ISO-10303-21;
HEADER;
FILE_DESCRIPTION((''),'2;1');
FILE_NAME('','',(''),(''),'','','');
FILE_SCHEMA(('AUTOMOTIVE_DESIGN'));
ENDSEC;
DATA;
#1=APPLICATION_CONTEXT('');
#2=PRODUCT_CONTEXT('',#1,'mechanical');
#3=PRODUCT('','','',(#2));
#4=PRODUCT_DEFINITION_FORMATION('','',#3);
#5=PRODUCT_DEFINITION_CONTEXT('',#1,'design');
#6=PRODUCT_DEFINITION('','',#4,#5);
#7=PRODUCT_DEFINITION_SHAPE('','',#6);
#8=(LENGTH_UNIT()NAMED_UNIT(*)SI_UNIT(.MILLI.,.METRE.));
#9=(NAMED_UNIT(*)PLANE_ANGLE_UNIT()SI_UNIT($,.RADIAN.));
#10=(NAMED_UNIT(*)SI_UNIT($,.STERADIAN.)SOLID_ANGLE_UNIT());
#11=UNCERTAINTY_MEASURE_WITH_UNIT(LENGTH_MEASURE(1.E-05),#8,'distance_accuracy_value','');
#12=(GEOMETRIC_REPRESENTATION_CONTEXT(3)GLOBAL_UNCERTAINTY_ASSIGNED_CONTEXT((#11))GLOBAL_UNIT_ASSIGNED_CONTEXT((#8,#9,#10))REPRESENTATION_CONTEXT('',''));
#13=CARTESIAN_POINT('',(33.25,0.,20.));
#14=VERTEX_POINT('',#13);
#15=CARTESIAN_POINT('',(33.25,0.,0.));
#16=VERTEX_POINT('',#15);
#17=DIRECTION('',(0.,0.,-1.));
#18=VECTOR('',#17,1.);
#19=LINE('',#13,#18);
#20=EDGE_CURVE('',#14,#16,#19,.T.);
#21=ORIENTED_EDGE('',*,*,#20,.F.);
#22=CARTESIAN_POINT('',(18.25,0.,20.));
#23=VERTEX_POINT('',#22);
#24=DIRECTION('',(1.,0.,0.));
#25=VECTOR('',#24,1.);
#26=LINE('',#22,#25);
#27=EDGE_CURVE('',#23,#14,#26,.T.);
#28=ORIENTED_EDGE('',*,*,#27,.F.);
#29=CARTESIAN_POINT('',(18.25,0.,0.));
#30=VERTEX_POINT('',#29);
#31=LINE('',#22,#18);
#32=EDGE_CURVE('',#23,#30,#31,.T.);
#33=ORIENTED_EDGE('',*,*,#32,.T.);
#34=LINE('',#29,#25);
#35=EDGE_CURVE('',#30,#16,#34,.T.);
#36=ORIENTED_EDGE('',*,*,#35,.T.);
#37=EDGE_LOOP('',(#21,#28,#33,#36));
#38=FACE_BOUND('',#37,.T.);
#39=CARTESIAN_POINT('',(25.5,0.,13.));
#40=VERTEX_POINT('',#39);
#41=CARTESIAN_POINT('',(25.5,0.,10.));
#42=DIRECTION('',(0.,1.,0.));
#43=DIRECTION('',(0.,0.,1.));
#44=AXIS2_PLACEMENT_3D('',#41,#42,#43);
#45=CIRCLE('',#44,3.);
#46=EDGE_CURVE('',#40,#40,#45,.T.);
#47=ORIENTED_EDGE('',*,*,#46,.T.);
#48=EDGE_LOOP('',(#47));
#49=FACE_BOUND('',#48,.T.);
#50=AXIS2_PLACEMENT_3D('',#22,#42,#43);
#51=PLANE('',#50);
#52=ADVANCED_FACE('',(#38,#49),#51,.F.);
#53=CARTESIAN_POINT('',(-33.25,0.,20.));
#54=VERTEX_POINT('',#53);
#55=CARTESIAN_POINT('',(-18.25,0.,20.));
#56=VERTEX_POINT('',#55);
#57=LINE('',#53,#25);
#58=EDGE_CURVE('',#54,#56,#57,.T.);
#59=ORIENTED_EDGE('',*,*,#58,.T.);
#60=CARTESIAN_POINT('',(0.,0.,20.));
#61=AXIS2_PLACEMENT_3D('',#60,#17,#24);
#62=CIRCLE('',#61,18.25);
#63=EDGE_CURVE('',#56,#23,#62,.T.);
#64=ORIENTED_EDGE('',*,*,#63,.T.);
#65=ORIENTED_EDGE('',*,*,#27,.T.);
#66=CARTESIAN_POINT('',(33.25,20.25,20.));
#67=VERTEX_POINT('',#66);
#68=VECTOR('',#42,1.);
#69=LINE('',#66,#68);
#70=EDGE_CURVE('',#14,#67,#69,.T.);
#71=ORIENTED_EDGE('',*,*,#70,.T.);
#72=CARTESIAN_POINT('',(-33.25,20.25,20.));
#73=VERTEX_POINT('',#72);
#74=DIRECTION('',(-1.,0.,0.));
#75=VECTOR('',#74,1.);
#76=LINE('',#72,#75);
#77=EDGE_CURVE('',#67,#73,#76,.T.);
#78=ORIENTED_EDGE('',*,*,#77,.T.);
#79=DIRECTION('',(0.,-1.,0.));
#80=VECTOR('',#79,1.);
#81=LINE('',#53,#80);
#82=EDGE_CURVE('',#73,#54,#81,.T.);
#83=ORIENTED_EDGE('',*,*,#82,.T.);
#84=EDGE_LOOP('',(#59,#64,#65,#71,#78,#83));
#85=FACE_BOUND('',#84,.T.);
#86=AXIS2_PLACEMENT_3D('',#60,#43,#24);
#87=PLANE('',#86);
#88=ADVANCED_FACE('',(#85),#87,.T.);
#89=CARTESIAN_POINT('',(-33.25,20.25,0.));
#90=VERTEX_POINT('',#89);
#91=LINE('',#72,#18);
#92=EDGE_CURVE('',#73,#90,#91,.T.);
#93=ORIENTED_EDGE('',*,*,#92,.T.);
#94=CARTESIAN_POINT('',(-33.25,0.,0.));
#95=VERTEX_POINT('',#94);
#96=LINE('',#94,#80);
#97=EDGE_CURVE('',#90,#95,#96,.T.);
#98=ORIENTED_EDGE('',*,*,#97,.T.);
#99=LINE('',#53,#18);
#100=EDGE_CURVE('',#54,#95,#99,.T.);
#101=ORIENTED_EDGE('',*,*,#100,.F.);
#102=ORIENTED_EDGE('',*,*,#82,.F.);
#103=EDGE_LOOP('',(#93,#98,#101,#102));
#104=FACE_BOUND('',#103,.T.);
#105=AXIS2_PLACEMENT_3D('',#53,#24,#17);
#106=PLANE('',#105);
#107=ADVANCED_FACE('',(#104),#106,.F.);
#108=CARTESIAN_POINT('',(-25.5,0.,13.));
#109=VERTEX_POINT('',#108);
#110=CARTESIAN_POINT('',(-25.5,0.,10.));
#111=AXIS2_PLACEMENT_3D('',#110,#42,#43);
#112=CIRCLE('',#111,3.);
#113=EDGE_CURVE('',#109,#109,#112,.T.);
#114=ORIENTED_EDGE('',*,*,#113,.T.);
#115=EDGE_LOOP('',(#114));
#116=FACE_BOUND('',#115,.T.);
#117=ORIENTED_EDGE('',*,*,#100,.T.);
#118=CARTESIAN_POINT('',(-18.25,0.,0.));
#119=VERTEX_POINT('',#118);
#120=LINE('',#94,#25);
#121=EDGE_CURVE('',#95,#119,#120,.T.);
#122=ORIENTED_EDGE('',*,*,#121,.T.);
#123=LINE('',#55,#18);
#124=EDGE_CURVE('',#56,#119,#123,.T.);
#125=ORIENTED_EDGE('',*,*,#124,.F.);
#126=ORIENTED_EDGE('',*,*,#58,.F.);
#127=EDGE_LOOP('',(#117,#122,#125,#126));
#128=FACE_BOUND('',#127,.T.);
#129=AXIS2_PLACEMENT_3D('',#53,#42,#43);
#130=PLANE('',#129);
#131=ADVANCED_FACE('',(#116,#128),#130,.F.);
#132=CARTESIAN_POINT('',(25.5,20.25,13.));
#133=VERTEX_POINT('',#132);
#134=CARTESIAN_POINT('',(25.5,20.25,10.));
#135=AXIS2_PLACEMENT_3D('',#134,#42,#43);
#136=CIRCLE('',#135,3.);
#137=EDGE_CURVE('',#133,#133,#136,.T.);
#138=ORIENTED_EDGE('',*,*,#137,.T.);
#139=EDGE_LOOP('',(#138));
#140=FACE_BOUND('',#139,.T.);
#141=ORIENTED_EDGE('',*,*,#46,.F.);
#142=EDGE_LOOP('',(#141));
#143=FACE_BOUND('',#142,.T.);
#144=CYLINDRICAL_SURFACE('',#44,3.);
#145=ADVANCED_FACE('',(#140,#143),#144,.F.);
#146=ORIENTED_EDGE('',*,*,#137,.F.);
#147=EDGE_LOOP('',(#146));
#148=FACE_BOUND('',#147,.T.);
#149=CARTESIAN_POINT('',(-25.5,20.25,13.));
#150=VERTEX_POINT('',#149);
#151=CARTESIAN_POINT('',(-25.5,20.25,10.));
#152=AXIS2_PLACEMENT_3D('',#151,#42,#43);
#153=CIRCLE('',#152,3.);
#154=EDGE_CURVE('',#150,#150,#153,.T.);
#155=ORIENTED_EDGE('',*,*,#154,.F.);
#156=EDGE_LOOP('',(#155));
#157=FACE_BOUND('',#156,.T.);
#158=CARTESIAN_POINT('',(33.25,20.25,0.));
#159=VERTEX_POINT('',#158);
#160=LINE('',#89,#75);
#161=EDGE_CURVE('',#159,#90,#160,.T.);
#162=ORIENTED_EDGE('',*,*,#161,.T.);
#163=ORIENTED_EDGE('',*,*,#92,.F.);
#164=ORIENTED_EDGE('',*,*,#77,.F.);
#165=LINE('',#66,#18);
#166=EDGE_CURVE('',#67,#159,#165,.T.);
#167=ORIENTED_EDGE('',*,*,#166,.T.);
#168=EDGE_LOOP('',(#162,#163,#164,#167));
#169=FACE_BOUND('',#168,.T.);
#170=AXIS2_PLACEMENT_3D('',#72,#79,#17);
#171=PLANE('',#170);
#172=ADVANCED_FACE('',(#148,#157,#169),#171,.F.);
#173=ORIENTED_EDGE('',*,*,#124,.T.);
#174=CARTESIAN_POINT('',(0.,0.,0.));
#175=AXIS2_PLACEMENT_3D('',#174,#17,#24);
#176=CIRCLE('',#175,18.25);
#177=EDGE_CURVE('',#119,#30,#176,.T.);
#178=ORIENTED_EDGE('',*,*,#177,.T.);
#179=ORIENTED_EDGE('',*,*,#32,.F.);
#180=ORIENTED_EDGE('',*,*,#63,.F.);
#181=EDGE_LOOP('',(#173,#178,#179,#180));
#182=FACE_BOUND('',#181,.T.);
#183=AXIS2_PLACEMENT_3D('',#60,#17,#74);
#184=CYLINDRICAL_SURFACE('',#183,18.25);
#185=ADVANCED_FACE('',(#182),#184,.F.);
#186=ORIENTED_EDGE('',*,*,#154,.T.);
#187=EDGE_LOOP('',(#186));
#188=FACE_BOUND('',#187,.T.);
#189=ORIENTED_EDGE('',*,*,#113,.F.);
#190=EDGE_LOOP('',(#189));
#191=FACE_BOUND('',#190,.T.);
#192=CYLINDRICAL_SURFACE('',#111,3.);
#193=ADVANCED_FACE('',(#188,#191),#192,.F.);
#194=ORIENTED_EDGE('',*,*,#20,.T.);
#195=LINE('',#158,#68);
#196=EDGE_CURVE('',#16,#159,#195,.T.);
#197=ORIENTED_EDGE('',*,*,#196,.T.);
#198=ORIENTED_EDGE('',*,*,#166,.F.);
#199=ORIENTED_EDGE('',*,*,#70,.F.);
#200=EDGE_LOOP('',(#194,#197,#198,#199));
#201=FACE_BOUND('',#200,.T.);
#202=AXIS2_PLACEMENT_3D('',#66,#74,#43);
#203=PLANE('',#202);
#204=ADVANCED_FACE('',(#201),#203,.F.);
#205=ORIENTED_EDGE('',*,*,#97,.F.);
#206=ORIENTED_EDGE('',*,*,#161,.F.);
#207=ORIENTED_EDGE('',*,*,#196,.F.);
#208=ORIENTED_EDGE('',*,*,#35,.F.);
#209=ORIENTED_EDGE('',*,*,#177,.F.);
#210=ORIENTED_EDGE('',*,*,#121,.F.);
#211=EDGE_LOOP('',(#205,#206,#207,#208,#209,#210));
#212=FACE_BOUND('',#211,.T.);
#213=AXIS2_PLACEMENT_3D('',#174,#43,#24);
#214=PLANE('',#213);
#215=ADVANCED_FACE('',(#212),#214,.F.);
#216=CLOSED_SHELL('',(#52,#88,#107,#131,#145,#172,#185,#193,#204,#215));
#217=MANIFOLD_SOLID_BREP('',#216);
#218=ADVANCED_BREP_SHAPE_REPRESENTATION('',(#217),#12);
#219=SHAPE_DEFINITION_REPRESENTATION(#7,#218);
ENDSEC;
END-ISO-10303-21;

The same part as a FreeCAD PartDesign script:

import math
import FreeCAD as App
import Part
import Sketcher

V = App.Vector

doc = App.newDocument("Part")
body = doc.addObject("PartDesign::Body", "Body")

sketch1 = doc.addObject("Sketcher::SketchObject", "Sketch")
body.addObject(sketch1)
sketch1.AttachmentSupport = (doc.XY_Plane, [""])
sketch1.MapMode = "FlatFace"
sketch1.addGeometry([
    Part.LineSegment(V(-33, 0, 0), V(-18, 0, 0)),
    Part.ArcOfCircle(Part.Circle(V(0, 0, 0), V(0, 0, 1), 18), math.radians(0), math.radians(180)),
    Part.LineSegment(V(18, 0, 0), V(33, 0, 0)),
    Part.LineSegment(V(33, 0, 0), V(33, 20, 0)),
    Part.LineSegment(V(33, 20, 0), V(-33, 20, 0)),
    Part.LineSegment(V(-33, 20, 0), V(-33, 0, 0)),
], False)
sketch1.addConstraint([
    Sketcher.Constraint("Coincident", 0, 2, 1, 2),
    Sketcher.Constraint("Coincident", 1, 1, 2, 1),
    Sketcher.Constraint("Coincident", 2, 2, 3, 1),
    Sketcher.Constraint("Coincident", 3, 2, 4, 1),
    Sketcher.Constraint("Coincident", 4, 2, 5, 1),
    Sketcher.Constraint("Coincident", 5, 2, 0, 1),
    Sketcher.Constraint("Horizontal", 0),
    Sketcher.Constraint("Horizontal", 2),
    Sketcher.Constraint("Vertical", 3),
    Sketcher.Constraint("Horizontal", 4),
    Sketcher.Constraint("Vertical", 5),
    Sketcher.Constraint("Coincident", 1, 3, -1, 1),
    Sketcher.Constraint("Symmetric", 2, 2, 5, 2, -1, 1),
    Sketcher.Constraint("PointOnObject", 0, 2, -1),
    Sketcher.Constraint("DistanceX", 0, 1, 0, 2, 15.0),
    Sketcher.Constraint("Radius", 1, 18.25),
    Sketcher.Constraint("DistanceY", 3, 1, 3, 2, 20.25),
])
pad1 = doc.addObject("PartDesign::Pad", "Pad")
body.addObject(pad1)
pad1.Profile = sketch1
pad1.Length = 20

sketch2 = doc.addObject("Sketcher::SketchObject", "Sketch001")
body.addObject(sketch2)
sketch2.AttachmentSupport = (doc.XZ_Plane, [""])
sketch2.MapMode = "FlatFace"
sketch2.AttachmentOffset = App.Placement(V(0, 0, -20.25), App.Rotation())
sketch2.addGeometry([
    Part.Circle(V(-25.5, 10, 0), V(0, 0, 1), 3),
    Part.Circle(V(25.5, 10, 0), V(0, 0, 1), 3),
], False)
sketch2.addConstraint([
    Sketcher.Constraint("Equal", 0, 1),
    Sketcher.Constraint("Symmetric", 0, 3, 1, 3, -2),
    Sketcher.Constraint("Diameter", 0, 6.0),
    Sketcher.Constraint("DistanceY", -1, 1, 0, 3, 10.0),
    Sketcher.Constraint("DistanceX", 0, 3, 1, 3, 51.0),
])
pocket1 = doc.addObject("PartDesign::Pocket", "Pocket")
body.addObject(pocket1)
pocket1.Profile = sketch2
pocket1.Type = "ThroughAll"
pocket1.Reversed = True

doc.recompute()
